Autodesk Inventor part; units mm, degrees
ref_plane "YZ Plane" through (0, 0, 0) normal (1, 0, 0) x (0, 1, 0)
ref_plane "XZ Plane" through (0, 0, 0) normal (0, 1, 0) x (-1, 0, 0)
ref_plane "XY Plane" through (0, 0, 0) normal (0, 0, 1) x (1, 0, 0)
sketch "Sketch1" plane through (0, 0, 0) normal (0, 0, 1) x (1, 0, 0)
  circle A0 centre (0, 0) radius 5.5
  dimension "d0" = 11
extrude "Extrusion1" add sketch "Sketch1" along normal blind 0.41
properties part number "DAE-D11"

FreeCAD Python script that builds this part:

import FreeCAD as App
import Part
import Sketcher

doc = App.newDocument("Part")
body = doc.addObject("PartDesign::Body", "Body")

# Sketch on XY plane
sketch1 = doc.addObject("Sketcher::SketchObject", "Sketch")
body.addObject(sketch1)
sketch1.AttachmentSupport = (doc.XY_Plane, [""])
sketch1.MapMode = "FlatFace"
sketch1.addGeometry(Part.Circle(App.Vector(0, 0, 0), App.Vector(0, 0, 1), 6), False)
sketch1.addConstraint(Sketcher.Constraint("Coincident", 0, 3, -1, 1))
sketch1.addConstraint(Sketcher.Constraint("Diameter", 0, 11.0))
pad1 = doc.addObject("PartDesign::Pad", "Pad")
body.addObject(pad1)
pad1.Profile = sketch1
pad1.Length = 0.41

doc.recompute()
